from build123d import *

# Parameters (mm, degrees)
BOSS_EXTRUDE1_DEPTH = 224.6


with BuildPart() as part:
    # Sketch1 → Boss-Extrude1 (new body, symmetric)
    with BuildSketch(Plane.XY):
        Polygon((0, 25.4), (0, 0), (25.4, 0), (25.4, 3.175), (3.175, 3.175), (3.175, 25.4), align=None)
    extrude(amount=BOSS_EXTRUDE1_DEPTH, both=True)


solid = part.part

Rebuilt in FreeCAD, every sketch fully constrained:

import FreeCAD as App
import Part
import Sketcher
Q = App.Units.Quantity

doc = App.newDocument("Part")
body = doc.addObject("PartDesign::Body", "Body")

# Sketch on XY plane
sketch1 = body.newObject("Sketcher::SketchObject", "Sketch")
sketch1.AttachmentSupport = (doc.getObject("XY_Plane"), [""])
sketch1.MapMode = "FlatFace"
sketch1.addGeometry(Part.LineSegment(App.Vector(0, 25.4, 0), App.Vector(0, 0, 0)), False)
sketch1.addGeometry(Part.LineSegment(App.Vector(0, 0, 0), App.Vector(25.4, 0, 0)), False)
sketch1.addGeometry(Part.LineSegment(App.Vector(25.4, 0, 0), App.Vector(25.4, 3.2, 0)), False)
sketch1.addGeometry(Part.LineSegment(App.Vector(25.4, 3.2, 0), App.Vector(3.2, 3.2, 0)), False)
sketch1.addGeometry(Part.LineSegment(App.Vector(3.2, 3.2, 0), App.Vector(3.2, 25.4, 0)), False)
sketch1.addGeometry(Part.LineSegment(App.Vector(3.2, 25.4, 0), App.Vector(0, 25.4, 0)), False)
sketch1.addConstraint(Sketcher.Constraint("Coincident", 0, 2, 1, 1))
sketch1.addConstraint(Sketcher.Constraint("Coincident", 1, 2, 2, 1))
sketch1.addConstraint(Sketcher.Constraint("Coincident", 2, 2, 3, 1))
sketch1.addConstraint(Sketcher.Constraint("Coincident", 3, 2, 4, 1))
sketch1.addConstraint(Sketcher.Constraint("Coincident", 4, 2, 5, 1))
sketch1.addConstraint(Sketcher.Constraint("Coincident", 5, 2, 0, 1))
sketch1.addConstraint(Sketcher.Constraint("Vertical", 0))
sketch1.addConstraint(Sketcher.Constraint("Horizontal", 1))
sketch1.addConstraint(Sketcher.Constraint("Vertical", 2))
sketch1.addConstraint(Sketcher.Constraint("Horizontal", 3))
sketch1.addConstraint(Sketcher.Constraint("Vertical", 4))
sketch1.addConstraint(Sketcher.Constraint("Horizontal", 5))
sketch1.addConstraint(Sketcher.Constraint("Coincident", 0, 2, -1, 1))
sketch1.addConstraint(Sketcher.Constraint("Equal", 1, 0))
sketch1.addConstraint(Sketcher.Constraint("Equal", 5, 2))
sketch1.addConstraint(Sketcher.Constraint("DistanceX", 1, 1, 1, 2, Q("1 in")))
sketch1.addConstraint(Sketcher.Constraint("DistanceX", 3, 2, 3, 1, Q("0.875 in")))
pad1 = body.newObject("PartDesign::Pad", "Pad")
pad1.Profile = sketch1
pad1.Length = 449.2
pad1.Midplane = True

doc.recompute()
